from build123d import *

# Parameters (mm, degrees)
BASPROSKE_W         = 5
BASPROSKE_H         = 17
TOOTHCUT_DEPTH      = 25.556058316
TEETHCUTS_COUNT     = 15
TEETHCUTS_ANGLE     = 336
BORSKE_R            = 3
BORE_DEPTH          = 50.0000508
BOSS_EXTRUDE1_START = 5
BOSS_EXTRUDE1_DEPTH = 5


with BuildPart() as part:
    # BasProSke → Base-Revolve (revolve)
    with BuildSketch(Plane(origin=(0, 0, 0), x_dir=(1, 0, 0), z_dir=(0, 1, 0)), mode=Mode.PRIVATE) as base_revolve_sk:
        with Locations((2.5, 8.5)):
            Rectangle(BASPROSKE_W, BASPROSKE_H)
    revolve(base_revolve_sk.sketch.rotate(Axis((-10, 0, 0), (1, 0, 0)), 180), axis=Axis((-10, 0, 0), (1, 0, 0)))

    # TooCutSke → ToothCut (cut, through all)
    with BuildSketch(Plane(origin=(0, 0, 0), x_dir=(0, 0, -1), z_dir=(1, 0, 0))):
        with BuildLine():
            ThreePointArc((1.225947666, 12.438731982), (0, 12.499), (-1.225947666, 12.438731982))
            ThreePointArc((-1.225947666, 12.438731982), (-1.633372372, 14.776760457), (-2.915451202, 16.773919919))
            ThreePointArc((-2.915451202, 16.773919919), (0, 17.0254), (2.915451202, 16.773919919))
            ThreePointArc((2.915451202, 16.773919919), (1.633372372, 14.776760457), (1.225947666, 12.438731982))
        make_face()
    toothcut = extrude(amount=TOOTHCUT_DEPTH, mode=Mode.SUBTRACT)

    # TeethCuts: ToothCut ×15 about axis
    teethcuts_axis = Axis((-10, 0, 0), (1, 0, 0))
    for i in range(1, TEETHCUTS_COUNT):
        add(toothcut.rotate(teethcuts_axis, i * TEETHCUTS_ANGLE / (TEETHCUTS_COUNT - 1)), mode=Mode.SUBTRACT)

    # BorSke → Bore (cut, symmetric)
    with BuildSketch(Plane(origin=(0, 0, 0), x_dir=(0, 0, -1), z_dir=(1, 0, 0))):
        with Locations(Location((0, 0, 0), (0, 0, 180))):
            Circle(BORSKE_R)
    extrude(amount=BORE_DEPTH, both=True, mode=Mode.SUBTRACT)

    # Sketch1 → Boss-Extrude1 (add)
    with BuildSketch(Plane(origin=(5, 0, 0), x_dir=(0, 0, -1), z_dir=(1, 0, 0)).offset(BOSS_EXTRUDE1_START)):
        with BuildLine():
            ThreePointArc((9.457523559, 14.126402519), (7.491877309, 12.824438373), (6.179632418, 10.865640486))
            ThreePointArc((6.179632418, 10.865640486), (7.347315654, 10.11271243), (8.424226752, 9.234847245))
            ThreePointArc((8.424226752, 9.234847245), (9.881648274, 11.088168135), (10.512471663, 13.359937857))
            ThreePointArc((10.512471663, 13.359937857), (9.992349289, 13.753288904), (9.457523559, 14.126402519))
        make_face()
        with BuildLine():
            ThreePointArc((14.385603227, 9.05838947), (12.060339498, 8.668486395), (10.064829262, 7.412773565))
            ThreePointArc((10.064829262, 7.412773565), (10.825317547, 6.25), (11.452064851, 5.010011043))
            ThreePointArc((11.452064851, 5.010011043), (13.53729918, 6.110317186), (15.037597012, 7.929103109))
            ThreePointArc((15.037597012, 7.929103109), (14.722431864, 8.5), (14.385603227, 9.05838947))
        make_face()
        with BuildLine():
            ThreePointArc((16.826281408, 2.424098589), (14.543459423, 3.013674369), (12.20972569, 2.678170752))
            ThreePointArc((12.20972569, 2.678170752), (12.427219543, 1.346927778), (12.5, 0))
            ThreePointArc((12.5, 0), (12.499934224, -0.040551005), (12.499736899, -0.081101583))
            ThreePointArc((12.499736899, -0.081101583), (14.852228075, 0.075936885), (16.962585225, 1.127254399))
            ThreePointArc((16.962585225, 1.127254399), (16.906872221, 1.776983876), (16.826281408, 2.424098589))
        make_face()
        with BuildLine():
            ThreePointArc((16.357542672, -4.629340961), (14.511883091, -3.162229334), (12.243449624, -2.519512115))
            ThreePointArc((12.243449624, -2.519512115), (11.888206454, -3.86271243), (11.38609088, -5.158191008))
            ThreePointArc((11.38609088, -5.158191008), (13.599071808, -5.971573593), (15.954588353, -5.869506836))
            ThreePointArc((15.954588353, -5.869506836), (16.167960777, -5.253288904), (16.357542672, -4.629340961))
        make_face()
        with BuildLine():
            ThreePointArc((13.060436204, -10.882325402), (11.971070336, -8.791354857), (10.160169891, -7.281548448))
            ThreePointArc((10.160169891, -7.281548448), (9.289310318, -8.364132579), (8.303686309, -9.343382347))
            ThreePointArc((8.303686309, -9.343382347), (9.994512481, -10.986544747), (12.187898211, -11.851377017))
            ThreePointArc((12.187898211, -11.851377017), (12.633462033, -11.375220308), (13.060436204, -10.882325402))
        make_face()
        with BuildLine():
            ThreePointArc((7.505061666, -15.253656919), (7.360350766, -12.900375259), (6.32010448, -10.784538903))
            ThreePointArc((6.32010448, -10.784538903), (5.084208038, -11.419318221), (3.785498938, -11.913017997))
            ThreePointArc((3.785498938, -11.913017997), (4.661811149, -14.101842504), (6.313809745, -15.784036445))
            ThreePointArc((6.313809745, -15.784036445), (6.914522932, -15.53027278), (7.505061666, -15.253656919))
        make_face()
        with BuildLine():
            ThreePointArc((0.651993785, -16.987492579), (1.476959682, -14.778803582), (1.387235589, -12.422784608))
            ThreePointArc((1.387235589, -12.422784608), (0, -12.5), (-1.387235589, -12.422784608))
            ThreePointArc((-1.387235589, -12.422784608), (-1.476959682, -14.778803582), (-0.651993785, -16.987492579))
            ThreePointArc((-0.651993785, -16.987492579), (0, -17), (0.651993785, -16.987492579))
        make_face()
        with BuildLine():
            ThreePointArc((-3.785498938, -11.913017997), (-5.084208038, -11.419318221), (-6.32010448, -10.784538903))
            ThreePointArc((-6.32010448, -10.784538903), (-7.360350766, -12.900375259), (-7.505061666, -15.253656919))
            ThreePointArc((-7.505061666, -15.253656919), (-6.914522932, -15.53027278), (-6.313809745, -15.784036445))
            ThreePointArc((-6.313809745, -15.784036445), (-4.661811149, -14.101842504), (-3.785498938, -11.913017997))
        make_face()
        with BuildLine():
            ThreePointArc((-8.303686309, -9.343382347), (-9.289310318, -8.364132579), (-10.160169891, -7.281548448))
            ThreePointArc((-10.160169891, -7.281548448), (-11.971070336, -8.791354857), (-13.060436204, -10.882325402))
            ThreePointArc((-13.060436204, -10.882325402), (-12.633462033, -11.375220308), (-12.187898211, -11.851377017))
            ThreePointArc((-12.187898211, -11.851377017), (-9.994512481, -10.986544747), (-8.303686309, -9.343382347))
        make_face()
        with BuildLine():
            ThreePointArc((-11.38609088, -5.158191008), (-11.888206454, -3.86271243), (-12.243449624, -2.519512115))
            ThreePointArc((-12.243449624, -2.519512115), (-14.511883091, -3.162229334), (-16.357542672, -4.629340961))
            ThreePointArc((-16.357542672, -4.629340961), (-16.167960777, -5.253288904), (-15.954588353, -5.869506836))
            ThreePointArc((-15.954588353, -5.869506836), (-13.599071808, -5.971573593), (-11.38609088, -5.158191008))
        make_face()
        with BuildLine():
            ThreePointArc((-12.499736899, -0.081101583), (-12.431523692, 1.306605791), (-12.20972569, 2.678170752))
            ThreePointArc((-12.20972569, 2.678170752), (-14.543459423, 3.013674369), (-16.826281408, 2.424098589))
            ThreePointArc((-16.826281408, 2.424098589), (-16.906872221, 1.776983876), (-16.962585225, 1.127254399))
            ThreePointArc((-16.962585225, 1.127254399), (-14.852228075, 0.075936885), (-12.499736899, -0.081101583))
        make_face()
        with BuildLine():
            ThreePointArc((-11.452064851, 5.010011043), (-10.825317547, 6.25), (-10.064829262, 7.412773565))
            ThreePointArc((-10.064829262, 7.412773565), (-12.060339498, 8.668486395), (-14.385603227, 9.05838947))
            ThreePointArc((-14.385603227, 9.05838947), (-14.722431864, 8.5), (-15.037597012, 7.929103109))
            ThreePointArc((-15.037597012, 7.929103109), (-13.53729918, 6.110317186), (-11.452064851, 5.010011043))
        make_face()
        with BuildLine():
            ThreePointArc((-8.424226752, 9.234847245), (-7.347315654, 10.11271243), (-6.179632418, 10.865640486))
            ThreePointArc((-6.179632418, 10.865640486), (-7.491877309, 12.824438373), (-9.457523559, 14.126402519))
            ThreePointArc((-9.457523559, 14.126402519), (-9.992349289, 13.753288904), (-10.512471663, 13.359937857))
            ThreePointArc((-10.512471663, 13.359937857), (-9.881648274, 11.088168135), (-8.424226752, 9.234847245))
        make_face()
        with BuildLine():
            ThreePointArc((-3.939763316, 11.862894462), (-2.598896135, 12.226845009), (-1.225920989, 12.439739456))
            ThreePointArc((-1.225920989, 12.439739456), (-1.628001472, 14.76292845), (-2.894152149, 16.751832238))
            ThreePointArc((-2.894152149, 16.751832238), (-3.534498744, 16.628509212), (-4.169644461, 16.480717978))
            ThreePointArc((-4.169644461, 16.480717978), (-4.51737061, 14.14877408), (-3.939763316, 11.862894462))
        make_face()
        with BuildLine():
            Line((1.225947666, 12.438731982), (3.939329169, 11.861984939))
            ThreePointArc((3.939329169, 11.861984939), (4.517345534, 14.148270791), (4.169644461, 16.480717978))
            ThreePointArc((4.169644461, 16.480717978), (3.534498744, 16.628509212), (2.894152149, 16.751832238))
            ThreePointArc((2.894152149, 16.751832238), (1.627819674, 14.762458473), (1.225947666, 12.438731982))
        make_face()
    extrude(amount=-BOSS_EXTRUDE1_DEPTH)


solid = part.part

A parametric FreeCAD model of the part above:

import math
import FreeCAD as App
import Part
import Sketcher
from FreeCAD import Vector
Q = App.Units.Quantity

doc = App.newDocument("Part")
body = doc.addObject("PartDesign::Body", "Body")

sketch1 = body.newObject("Sketcher::SketchObject", "Sketch")
sketch1.AttachmentSupport = (doc.getObject("XZ_Plane"), [""])
sketch1.MapMode = "FlatFace"
sketch1.addGeometry([
    Part.LineSegment(Vector(0, -17, 0), Vector(0, 0, 0)),
    Part.LineSegment(Vector(0, 0, 0), Vector(5, 0, 0)),
    Part.LineSegment(Vector(5, 0, 0), Vector(5, -17, 0)),
    Part.LineSegment(Vector(5, -17, 0), Vector(0, -17, 0)),
], False)
sketch1.addConstraint([
    Sketcher.Constraint("Coincident", 0, 2, 1, 1),
    Sketcher.Constraint("Coincident", 1, 2, 2, 1),
    Sketcher.Constraint("Coincident", 2, 2, 3, 1),
    Sketcher.Constraint("Coincident", 3, 2, 0, 1),
    Sketcher.Constraint("Vertical", 0),
    Sketcher.Constraint("Horizontal", 1),
    Sketcher.Constraint("Vertical", 2),
    Sketcher.Constraint("Horizontal", 3),
    Sketcher.Constraint("Coincident", 0, 2, -1, 1),
    Sketcher.Constraint("DistanceX", 1, 1, 1, 2, Q("5 mm")),
    Sketcher.Constraint("DistanceY", 0, 1, 0, 2, Q("17 mm")),
])
revolution = body.newObject("PartDesign::Revolution", "Revolution")
revolution.Profile = sketch1
revolution.ReferenceAxis = (sketch1, ["H_Axis"])
revolution.Angle = 360

sketch2 = body.newObject("Sketcher::SketchObject", "Sketch001")
sketch2.AttachmentSupport = (doc.getObject("YZ_Plane"), [""])
sketch2.MapMode = "FlatFace"
sketch2.addGeometry([
    Part.ArcOfCircle(Part.Circle(Vector(0, 0, 0), Vector(0, 0, 1), 12.499), math.radians(-5.62883), math.radians(5.62883)),
    Part.ArcOfCircle(Part.Circle(Vector(12.598054, -7.223832, 0), Vector(0, 0, 1), 6), math.radians(45.894827), math.radians(91.521593)),
    Part.ArcOfCircle(Part.Circle(Vector(0, 0, 0), Vector(0, 0, 1), 17.0254), math.radians(-9.859997), math.radians(9.859997)),
    Part.ArcOfCircle(Part.Circle(Vector(12.598054, 7.223832, 0), Vector(0, 0, 1), 6), math.radians(-91.521593), math.radians(-45.894827)),
], False)
sketch2.addConstraint([
    Sketcher.Constraint("Coincident", 0, 1, 1, 2),
    Sketcher.Constraint("Coincident", 1, 1, 2, 1),
    Sketcher.Constraint("Coincident", 2, 2, 3, 2),
    Sketcher.Constraint("Coincident", 3, 1, 0, 2),
    Sketcher.Constraint("Coincident", 0, 3, -1, 1),
    Sketcher.Constraint("Coincident", 2, 3, -1, 1),
    Sketcher.Constraint("Equal", 1, 3),
    Sketcher.Constraint("Symmetric", 1, 3, 3, 3, -1),
    Sketcher.Constraint("Radius", 1, Q("6 mm")),
    Sketcher.Constraint("Radius", 0, Q("12.499 mm")),
    Sketcher.Constraint("Radius", 2, Q("17.0254 mm")),
    Sketcher.Constraint("DistanceY", 0, 1, 2, 2, Q("4.141399 mm")),
    Sketcher.Constraint("DistanceX", -1, 1, 0, 1, Q("12.438732 mm")),
])
pocket1 = body.newObject("PartDesign::Pocket", "Pocket")
pocket1.Profile = sketch2
pocket1.Type = "ThroughAll"
pocket1.Reversed = True
doc.recompute()

polarpattern = body.newObject("PartDesign::PolarPattern", "PolarPattern")
polarpattern.Originals = [pocket1]
polarpattern.Axis = (doc.getObject("X_Axis"), [""])
polarpattern.Angle = 360
polarpattern.Occurrences = 15
body.Tip = polarpattern

sketch3 = body.newObject("Sketcher::SketchObject", "Sketch002")
sketch3.AttachmentSupport = (doc.getObject("YZ_Plane"), [""])
sketch3.MapMode = "FlatFace"
sketch3.addGeometry(Part.Circle(Vector(0, 0, 0), Vector(0, 0, 1), 3), False)
sketch3.addConstraint([
    Sketcher.Constraint("Coincident", 0, 3, -1, 1),
    Sketcher.Constraint("Diameter", 0, Q("6 mm")),
])
pocket2 = body.newObject("PartDesign::Pocket", "Pocket001")
pocket2.Profile = sketch3
pocket2.Length = 100.000102
pocket2.Midplane = True

sketch4 = body.newObject("Sketcher::SketchObject", "Sketch003")
sketch4.AttachmentSupport = (doc.getObject("YZ_Plane"), [""])
sketch4.MapMode = "FlatFace"
sketch4.AttachmentOffset = App.Placement(Vector(0, 0, 10), App.Rotation())
sketch4.addGeometry([
    Part.ArcOfCircle(Part.Circle(Vector(8.570698, -11.723389, 0), Vector(0, 0, 1), 6), math.radians(22.187839), math.radians(67.511969)),
    Part.ArcOfCircle(Part.Circle(Vector(0, 0, 0), Vector(0, 0, 1), 12.5), math.radians(-42.371745), math.radians(-29.628255)),
    Part.ArcOfCircle(Part.Circle(Vector(13.798097, -4.528492, 0), Vector(0, 0, 1), 6), math.radians(-139.511969), math.radians(-94.187839)),
    Part.ArcOfCircle(Part.Circle(Vector(0, 0, 0), Vector(0, 0, 1), 17.000001), math.radians(-38.19798), math.radians(-33.80202)),
    Part.ArcOfCircle(Part.Circle(Vector(3.06139, -14.195866, 0), Vector(0, 0, 1), 6), math.radians(-1.812161), math.radians(43.511969)),
    Part.ArcOfCircle(Part.Circle(Vector(0, 0, 0), Vector(0, 0, 1), 12.5), math.radians(-66.371745), math.radians(-53.628255)),
    Part.ArcOfCircle(Part.Circle(Vector(10.763285, -9.749175, 0), Vector(0, 0, 1), 6), math.radians(-163.511969), math.radians(-118.187839)),
    Part.ArcOfCircle(Part.Circle(Vector(0, 0, 0), Vector(0, 0, 1), 17), math.radians(-62.19798), math.radians(-57.80202)),
    Part.ArcOfCircle(Part.Circle(Vector(-2.97726, -14.213748, 0), Vector(0, 0, 1), 6), math.radians(-25.812161), math.radians(19.511969)),
    Part.ArcOfCircle(Part.Circle(Vector(0, 0, 0), Vector(0, 0, 1), 12.5), math.radians(-90), math.radians(-77.628255)),
    Part.ArcOfCircle(Part.Circle(Vector(0, 0.00013, 0), Vector(0, 0, 1), 12.50013), math.radians(-90.371743), math.radians(-90.000002)),
    Part.ArcOfCircle(Part.Circle(Vector(5.867404, -13.284137, 0), Vector(0, 0, 1), 6), math.radians(172.488031), math.radians(217.812161)),
    Part.ArcOfCircle(Part.Circle(Vector(0, 0, 0), Vector(0, 0, 1), 17), math.radians(-86.19798), math.radians(-81.80202)),
    Part.ArcOfCircle(Part.Circle(Vector(-8.501114, -11.773945, 0), Vector(0, 0, 1), 6), math.radians(-49.812161), math.radians(-4.488031)),
    Part.ArcOfCircle(Part.Circle(Vector(0, 0, 0), Vector(0, 0, 1), 12.5), math.radians(-114.371745), math.radians(-101.628255)),
    Part.ArcOfCircle(Part.Circle(Vector(-0.043005, -14.522151, 0), Vector(0, 0, 1), 6), math.radians(148.488031), math.radians(193.812161)),
    Part.ArcOfCircle(Part.Circle(Vector(0, 0, 0), Vector(0, 0, 1), 17), math.radians(-110.19798), math.radians(-105.80202)),
    Part.ArcOfCircle(Part.Circle(Vector(-12.555049, -7.298319, 0), Vector(0, 0, 1), 6), math.radians(-73.812161), math.radians(-28.488031)),
    Part.ArcOfCircle(Part.Circle(Vector(0, 0, 0), Vector(0, 0, 1), 12.5), math.radians(-138.371745), math.radians(-125.628255)),
    Part.ArcOfCircle(Part.Circle(Vector(-5.945978, -13.249153, 0), Vector(0, 0, 1), 6), math.radians(124.488031), math.radians(169.812161)),
    Part.ArcOfCircle(Part.Circle(Vector(0, 0, 0), Vector(0, 0, 1), 17), math.radians(-134.19798), math.radians(-129.80202)),
    Part.ArcOfCircle(Part.Circle(Vector(-14.438102, -1.560748, 0), Vector(0, 0, 1), 6), math.radians(-97.812161), math.radians(-52.488031)),
    Part.ArcOfCircle(Part.Circle(Vector(0, 0, 0), Vector(0, 0, 1), 12.5), math.radians(-162.371745), math.radians(-149.628255)),
    Part.ArcOfCircle(Part.Circle(Vector(-10.820837, -9.685257, 0), Vector(0, 0, 1), 6), math.radians(100.488031), math.radians(145.812161)),
    Part.ArcOfCircle(Part.Circle(Vector(0, 0, 0), Vector(0, 0, 1), 17), math.radians(-158.19798), math.radians(-153.80202)),
    Part.ArcOfCircle(Part.Circle(Vector(-13.824676, 4.446691, 0), Vector(0, 0, 1), 6), math.radians(-121.812161), math.radians(-76.488031)),
    Part.ArcOfCircle(Part.Circle(Vector(0, 0, 0), Vector(0, 0, 1), 12.5), math.radians(173.628255), math.radians(186.371745)),
    Part.ArcOfCircle(Part.Circle(Vector(-13.824676, -4.446691, 0), Vector(0, 0, 1), 6), math.radians(76.488031), math.radians(121.812161)),
    Part.ArcOfCircle(Part.Circle(Vector(0.000001, 0, 0), Vector(0, 0, 1), 17.000001), math.radians(177.80202), math.radians(182.19798)),
    Part.ArcOfCircle(Part.Circle(Vector(0, 0, 0), Vector(0, 0, 1), 12.5), math.radians(149.628255), math.radians(162.371745)),
    Part.ArcOfCircle(Part.Circle(Vector(-14.438102, 1.560748, 0), Vector(0, 0, 1), 6), math.radians(52.488031), math.radians(97.812161)),
    Part.ArcOfCircle(Part.Circle(Vector(0, 0, 0), Vector(0, 0, 1), 17), math.radians(153.80202), math.radians(158.19798)),
    Part.ArcOfCircle(Part.Circle(Vector(-10.820837, 9.685257, 0), Vector(0, 0, 1), 6), math.radians(-145.812161), math.radians(-100.488031)),
    Part.ArcOfCircle(Part.Circle(Vector(0, 0, 0), Vector(0, 0, 1), 12.5), math.radians(125.628255), math.radians(138.371745)),
    Part.ArcOfCircle(Part.Circle(Vector(-12.555049, 7.298319, 0), Vector(0, 0, 1), 6), math.radians(28.488031), math.radians(73.812161)),
    Part.ArcOfCircle(Part.Circle(Vector(0, 0, 0), Vector(0, 0, 1), 17), math.radians(129.80202), math.radians(134.19798)),
    Part.ArcOfCircle(Part.Circle(Vector(-5.945978, 13.249153, 0), Vector(0, 0, 1), 6), math.radians(-169.812161), math.radians(-124.488031)),
    Part.ArcOfCircle(Part.Circle(Vector(0, 0, 0), Vector(0, 0, 1), 12.5), math.radians(101.628255), math.radians(114.371745)),
    Part.ArcOfCircle(Part.Circle(Vector(-8.501114, 11.773945, 0), Vector(0, 0, 1), 6), math.radians(4.488031), math.radians(49.812161)),
    Part.ArcOfCircle(Part.Circle(Vector(0, 0, 0), Vector(0, 0, 1), 17), math.radians(105.80202), math.radians(110.19798)),
    Part.ArcOfCircle(Part.Circle(Vector(-0.043005, 14.522151, 0), Vector(0, 0, 1), 6), math.radians(166.187839), math.radians(211.511969)),
    Part.ArcOfCircle(Part.Circle(Vector(0, 0, 0), Vector(0, 0, 1), 12.5), math.radians(77.628255), math.radians(90.371745)),
    Part.ArcOfCircle(Part.Circle(Vector(-2.97726, 14.213748, 0), Vector(0, 0, 1), 6), math.radians(-19.511969), math.radians(25.812161)),
    Part.ArcOfCircle(Part.Circle(Vector(0, 0, 0), Vector(0, 0, 1), 17), math.radians(81.80202), math.radians(86.19798)),
    Part.ArcOfCircle(Part.Circle(Vector(5.867404, 13.284137, 0), Vector(0, 0, 1), 6), math.radians(142.187839), math.radians(187.511969)),
    Part.ArcOfCircle(Part.Circle(Vector(0, 0, 0), Vector(0, 0, 1), 12.5), math.radians(53.628255), math.radians(66.371745)),
    Part.ArcOfCircle(Part.Circle(Vector(3.06139, 14.195866, 0), Vector(0, 0, 1), 6), math.radians(-43.511969), math.radians(1.812161)),
    Part.ArcOfCircle(Part.Circle(Vector(0, 0, 0), Vector(0, 0, 1), 17), math.radians(57.80202), math.radians(62.19798)),
    Part.ArcOfCircle(Part.Circle(Vector(10.763285, 9.749175, 0), Vector(0, 0, 1), 6), math.radians(118.187839), math.radians(163.511969)),
    Part.ArcOfCircle(Part.Circle(Vector(0, 0, 0), Vector(0, 0, 1), 12.5), math.radians(29.628255), math.radians(42.371745)),
    Part.ArcOfCircle(Part.Circle(Vector(8.570698, 11.723389, 0), Vector(0, 0, 1), 6), math.radians(-67.511969), math.radians(-22.187839)),
    Part.ArcOfCircle(Part.Circle(Vector(0, 0, 0), Vector(0, 0, 1), 17.000001), math.radians(33.80202), math.radians(38.19798)),
    Part.ArcOfCircle(Part.Circle(Vector(13.798097, 4.528492, 0), Vector(0, 0, 1), 6), math.radians(94.187839), math.radians(139.511969)),
    Part.ArcOfCircle(Part.Circle(Vector(0, 0, 0), Vector(0, 0, 1), 12.5), math.radians(5.628255), math.radians(18.371745)),
    Part.ArcOfCircle(Part.Circle(Vector(12.598054, 7.223832, 0), Vector(0, 0, 1), 6), math.radians(-91.511969), math.radians(-46.187839)),
    Part.ArcOfCircle(Part.Circle(Vector(0, 0, 0), Vector(0, 0, 1), 17), math.radians(9.80202), math.radians(14.19798)),
    Part.ArcOfCircle(Part.Circle(Vector(14.447092, -1.475209, 0), Vector(0, 0, 1), 6), math.radians(70.187839), math.radians(115.511969)),
    Part.LineSegment(Vector(12.438732, -1.225948, 0), Vector(11.861985, -3.939329, 0)),
    Part.ArcOfCircle(Part.Circle(Vector(14.447092, 1.475209, 0), Vector(0, 0, 1), 6), math.radians(-115.521593), math.radians(-70.187839)),
    Part.ArcOfCircle(Part.Circle(Vector(0, 0, 0), Vector(0, 0, 1), 17), math.radians(-14.19798), math.radians(-9.80202)),
    Part.ArcOfCircle(Part.Circle(Vector(12.598054, -7.223832, 0), Vector(0, 0, 1), 6), math.radians(46.187839), math.radians(91.521593)),
], False)
sketch4.addConstraint([
    Sketcher.Constraint("Coincident", 0, 2, 1, 2),
    Sketcher.Constraint("Coincident", 1, 1, 2, 1),
    Sketcher.Constraint("Coincident", 2, 2, 3, 1),
    Sketcher.Constraint("Coincident", 3, 2, 0, 1),
    Sketcher.Constraint("Coincident", 4, 2, 5, 2),
    Sketcher.Constraint("Coincident", 5, 1, 6, 1),
    Sketcher.Constraint("Coincident", 6, 2, 7, 1),
    Sketcher.Constraint("Coincident", 7, 2, 4, 1),
    Sketcher.Constraint("Coincident", 8, 2, 9, 2),
    Sketcher.Constraint("Tangent", 9, 1, 10, 2),
    Sketcher.Constraint("Coincident", 10, 1, 11, 1),
    Sketcher.Constraint("Coincident", 11, 2, 12, 1),
    Sketcher.Constraint("Coincident", 12, 2, 8, 1),
    Sketcher.Constraint("Coincident", 13, 2, 14, 2),
    Sketcher.Constraint("Coincident", 14, 1, 15, 1),
    Sketcher.Constraint("Coincident", 15, 2, 16, 1),
    Sketcher.Constraint("Coincident", 16, 2, 13, 1),
    Sketcher.Constraint("Coincident", 17, 2, 18, 2),
    Sketcher.Constraint("Coincident", 18, 1, 19, 1),
    Sketcher.Constraint("Coincident", 19, 2, 20, 1),
    Sketcher.Constraint("Coincident", 20, 2, 17, 1),
    Sketcher.Constraint("Coincident", 21, 2, 22, 2),
    Sketcher.Constraint("Coincident", 22, 1, 23, 1),
    Sketcher.Constraint("Coincident", 23, 2, 24, 1),
    Sketcher.Constraint("Coincident", 24, 2, 21, 1),
    Sketcher.Constraint("Coincident", 25, 2, 26, 2),
    Sketcher.Constraint("Coincident", 26, 1, 27, 1),
    Sketcher.Constraint("Coincident", 27, 2, 28, 1),
    Sketcher.Constraint("Coincident", 28, 2, 25, 1),
    Sketcher.Constraint("Coincident", 29, 1, 30, 1),
    Sketcher.Constraint("Coincident", 30, 2, 31, 1),
    Sketcher.Constraint("Coincident", 31, 2, 32, 1),
    Sketcher.Constraint("Coincident", 32, 2, 29, 2),
    Sketcher.Constraint("Coincident", 33, 1, 34, 1),
    Sketcher.Constraint("Coincident", 34, 2, 35, 1),
    Sketcher.Constraint("Coincident", 35, 2, 36, 1),
    Sketcher.Constraint("Coincident", 36, 2, 33, 2),
    Sketcher.Constraint("Coincident", 37, 1, 38, 1),
    Sketcher.Constraint("Coincident", 38, 2, 39, 1),
    Sketcher.Constraint("Coincident", 39, 2, 40, 1),
    Sketcher.Constraint("Coincident", 40, 2, 37, 2),
    Sketcher.Constraint("Coincident", 41, 1, 42, 1),
    Sketcher.Constraint("Coincident", 42, 2, 43, 1),
    Sketcher.Constraint("Coincident", 43, 2, 44, 1),
    Sketcher.Constraint("Coincident", 44, 2, 41, 2),
    Sketcher.Constraint("Coincident", 45, 1, 46, 1),
    Sketcher.Constraint("Coincident", 46, 2, 47, 1),
    Sketcher.Constraint("Coincident", 47, 2, 48, 1),
    Sketcher.Constraint("Coincident", 48, 2, 45, 2),
    Sketcher.Constraint("Coincident", 49, 1, 50, 1),
    Sketcher.Constraint("Coincident", 50, 2, 51, 1),
    Sketcher.Constraint("Coincident", 51, 2, 52, 1),
    Sketcher.Constraint("Coincident", 52, 2, 49, 2),
    Sketcher.Constraint("Coincident", 53, 1, 54, 1),
    Sketcher.Constraint("Coincident", 54, 2, 55, 1),
    Sketcher.Constraint("Coincident", 55, 2, 56, 1),
    Sketcher.Constraint("Coincident", 56, 2, 53, 2),
    Sketcher.Constraint("Coincident", 57, 2, 58, 1),
    Sketcher.Constraint("Coincident", 58, 2, 59, 1),
    Sketcher.Constraint("Coincident", 59, 2, 60, 1),
    Sketcher.Constraint("Coincident", 60, 2, 57, 1),
    Sketcher.Constraint("Coincident", 1, 3, -1, 1),
    Sketcher.Constraint("Coincident", 3, 3, -1, 1),
    Sketcher.Constraint("Coincident", 5, 3, -1, 1),
    Sketcher.Constraint("Coincident", 7, 3, -1, 1),
    Sketcher.Constraint("Coincident", 9, 3, -1, 1),
    Sketcher.Constraint("Coincident", 12, 3, -1, 1),
    Sketcher.Constraint("Coincident", 14, 3, -1, 1),
    Sketcher.Constraint("Coincident", 16, 3, -1, 1),
    Sketcher.Constraint("Coincident", 18, 3, -1, 1),
    Sketcher.Constraint("Coincident", 20, 3, -1, 1),
    Sketcher.Constraint("Coincident", 22, 3, -1, 1),
    Sketcher.Constraint("Coincident", 24, 3, -1, 1),
    Sketcher.Constraint("Coincident", 26, 3, -1, 1),
    Sketcher.Constraint("Coincident", 28, 3, -1, 1),
    Sketcher.Constraint("Coincident", 29, 3, -1, 1),
    Sketcher.Constraint("Coincident", 31, 3, -1, 1),
    Sketcher.Constraint("Coincident", 33, 3, -1, 1),
    Sketcher.Constraint("Coincident", 35, 3, -1, 1),
    Sketcher.Constraint("Coincident", 37, 3, -1, 1),
    Sketcher.Constraint("Coincident", 39, 3, -1, 1),
    Sketcher.Constraint("Coincident", 41, 3, -1, 1),
    Sketcher.Constraint("Coincident", 43, 3, -1, 1),
    Sketcher.Constraint("Coincident", 45, 3, -1, 1),
    Sketcher.Constraint("Coincident", 47, 3, -1, 1),
    Sketcher.Constraint("Coincident", 49, 3, -1, 1),
    Sketcher.Constraint("Coincident", 51, 3, -1, 1),
    Sketcher.Constraint("Coincident", 53, 3, -1, 1),
    Sketcher.Constraint("Coincident", 55, 3, -1, 1),
    Sketcher.Constraint("Coincident", 59, 3, -1, 1),
    Sketcher.Constraint("Equal", 0, 2),
    Sketcher.Constraint("Equal", 2, 4),
    Sketcher.Constraint("Equal", 1, 5),
    Sketcher.Constraint("Equal", 4, 6),
    Sketcher.Constraint("Equal", 3, 7),
    Sketcher.Constraint("Equal", 6, 8),
    Sketcher.Constraint("Equal", 5, 9),
    Sketcher.Constraint("Equal", 8, 11),
    Sketcher.Constraint("Equal", 7, 12),
    Sketcher.Constraint("Equal", 11, 13),
    Sketcher.Constraint("Equal", 9, 14),
    Sketcher.Constraint("Equal", 13, 15),
    Sketcher.Constraint("Equal", 12, 16),
    Sketcher.Constraint("Equal", 15, 17),
    Sketcher.Constraint("Equal", 14, 18),
    Sketcher.Constraint("Equal", 17, 19),
    Sketcher.Constraint("Equal", 16, 20),
    Sketcher.Constraint("Equal", 19, 21),
    Sketcher.Constraint("Equal", 18, 22),
    Sketcher.Constraint("Equal", 21, 23),
    Sketcher.Constraint("Equal", 20, 24),
    Sketcher.Constraint("Equal", 23, 25),
    Sketcher.Constraint("Equal", 22, 26),
    Sketcher.Constraint("Equal", 25, 27),
    Sketcher.Constraint("Equal", 24, 28),
    Sketcher.Constraint("Equal", 26, 29),
    Sketcher.Constraint("Equal", 27, 30),
    Sketcher.Constraint("Equal", 28, 31),
    Sketcher.Constraint("Equal", 30, 32),
    Sketcher.Constraint("Equal", 29, 33),
    Sketcher.Constraint("Equal", 32, 34),
    Sketcher.Constraint("Equal", 31, 35),
    Sketcher.Constraint("Equal", 34, 36),
    Sketcher.Constraint("Equal", 33, 37),
    Sketcher.Constraint("Equal", 36, 38),
    Sketcher.Constraint("Equal", 35, 39),
    Sketcher.Constraint("Equal", 38, 40),
    Sketcher.Constraint("Equal", 37, 41),
    Sketcher.Constraint("Equal", 40, 42),
    Sketcher.Constraint("Equal", 39, 43),
    Sketcher.Constraint("Equal", 42, 44),
    Sketcher.Constraint("Equal", 41, 45),
    Sketcher.Constraint("Equal", 44, 46),
    Sketcher.Constraint("Equal", 43, 47),
    Sketcher.Constraint("Equal", 46, 48),
    Sketcher.Constraint("Equal", 45, 49),
    Sketcher.Constraint("Equal", 48, 50),
    Sketcher.Constraint("Equal", 47, 51),
    Sketcher.Constraint("Equal", 50, 52),
    Sketcher.Constraint("Equal", 49, 53),
    Sketcher.Constraint("Equal", 52, 54),
    Sketcher.Constraint("Equal", 51, 55),
    Sketcher.Constraint("Equal", 54, 56),
    Sketcher.Constraint("Equal", 56, 58),
    Sketcher.Constraint("Equal", 55, 59),
    Sketcher.Constraint("Equal", 58, 60),
    Sketcher.Constraint("Symmetric", 25, 3, 27, 3, -1),
    Sketcher.Constraint("Symmetric", 21, 3, 30, 3, -1),
    Sketcher.Constraint("Symmetric", 23, 3, 32, 3, -1),
    Sketcher.Constraint("Symmetric", 17, 3, 34, 3, -1),
    Sketcher.Constraint("Symmetric", 19, 3, 36, 3, -1),
    Sketcher.Constraint("Symmetric", 13, 3, 38, 3, -1),
    Sketcher.Constraint("Symmetric", 15, 3, 40, 3, -1),
    Sketcher.Constraint("Symmetric", 8, 3, 42, 3, -1),
    Sketcher.Constraint("Symmetric", 11, 3, 44, 3, -1),
    Sketcher.Constraint("Symmetric", 4, 3, 46, 3, -1),
    Sketcher.Constraint("Symmetric", 6, 3, 48, 3, -1),
    Sketcher.Constraint("Symmetric", 0, 3, 50, 3, -1),
    Sketcher.Constraint("Symmetric", 2, 3, 52, 3, -1),
    Sketcher.Constraint("Symmetric", 56, 3, 58, 3, -1),
    Sketcher.Constraint("Symmetric", 54, 3, 60, 3, -1),
    Sketcher.Constraint("PointOnObject", 9, 1, -2),
    Sketcher.Constraint("Radius", 0, Q("6 mm")),
    Sketcher.Constraint("Radius", 3, Q("17.000001 mm")),
    Sketcher.Constraint("Radius", 1, Q("12.5 mm")),
    Sketcher.Constraint("Angle", 57, Q("-102 deg")),
    Sketcher.Constraint("Radius", 10, Q("12.50013 mm")),
    Sketcher.Constraint("Distance", 57, Q("2.774 mm")),
    Sketcher.Constraint("DistanceX", 21, 3, -1, 1, Q("14.438102 mm")),
    Sketcher.Constraint("DistanceX", 10, 1, -1, 1, Q("0.081102 mm")),
    Sketcher.Constraint("DistanceX", -1, 1, 12, 2, Q("2.424099 mm")),
    Sketcher.Constraint("DistanceY", 19, 2, -1, 1, Q("12.187898 mm")),
    Sketcher.Constraint("DistanceY", 22, 1, -1, 1, Q("3.785499 mm")),
    Sketcher.Constraint("DistanceY", 0, 3, -1, 1, Q("11.723389 mm")),
    Sketcher.Constraint("DistanceY", 2, 3, -1, 1, Q("4.528492 mm")),
    Sketcher.Constraint("DistanceX", -1, 1, 4, 3, Q("3.06139 mm")),
    Sketcher.Constraint("DistanceX", 8, 3, -1, 1, Q("2.97726 mm")),
    Sketcher.Constraint("DistanceY", 15, 3, -1, 1, Q("14.522151 mm")),
    Sketcher.Constraint("DistanceX", 17, 3, -1, 1, Q("12.555049 mm")),
    Sketcher.Constraint("DistanceY", 17, 3, -1, 1, Q("7.298319 mm")),
    Sketcher.Constraint("DistanceY", -1, 1, 25, 3, Q("4.446691 mm")),
    Sketcher.Constraint("DistanceY", -1, 1, 54, 3, Q("7.223832 mm")),
    Sketcher.Constraint("DistanceY", 56, 3, -1, 1, Q("1.475209 mm")),
    Sketcher.Constraint("DistanceX", -1, 1, 0, 2, Q("10.86564 mm")),
    Sketcher.Constraint("DistanceY", 2, 2, -1, 1, Q("10.512472 mm")),
    Sketcher.Constraint("DistanceY", 4, 2, -1, 1, Q("10.064829 mm")),
    Sketcher.Constraint("DistanceX", -1, 1, 5, 1, Q("5.010011 mm")),
    Sketcher.Constraint("DistanceY", 13, 2, -1, 1, Q("12.24345 mm")),
    Sketcher.Constraint("DistanceX", 14, 1, -1, 1, Q("5.158191 mm")),
    Sketcher.Constraint("DistanceX", 16, 2, -1, 1, Q("4.629341 mm")),
    Sketcher.Constraint("DistanceX", 21, 2, -1, 1, Q("10.784539 mm")),
    Sketcher.Constraint("DistanceY", 23, 2, -1, 1, Q("6.31381 mm")),
    Sketcher.Constraint("DistanceY", 57, 2, -1, 1, Q("3.939329 mm")),
    Sketcher.Constraint("DistanceX", -1, 1, 60, 2, Q("12.438732 mm")),
    Sketcher.Constraint("DistanceX", -1, 1, 6, 3, Q("10.763285 mm")),
    Sketcher.Constraint("DistanceX", -1, 1, 11, 3, Q("5.867404 mm")),
    Sketcher.Constraint("DistanceX", 19, 3, -1, 1, Q("5.945978 mm")),
    Sketcher.Constraint("DistanceX", 25, 3, -1, 1, Q("13.824676 mm")),
])
pad1 = body.newObject("PartDesign::Pad", "Pad")
pad1.Profile = sketch4
pad1.Length = 5
pad1.Reversed = True

doc.recompute()
